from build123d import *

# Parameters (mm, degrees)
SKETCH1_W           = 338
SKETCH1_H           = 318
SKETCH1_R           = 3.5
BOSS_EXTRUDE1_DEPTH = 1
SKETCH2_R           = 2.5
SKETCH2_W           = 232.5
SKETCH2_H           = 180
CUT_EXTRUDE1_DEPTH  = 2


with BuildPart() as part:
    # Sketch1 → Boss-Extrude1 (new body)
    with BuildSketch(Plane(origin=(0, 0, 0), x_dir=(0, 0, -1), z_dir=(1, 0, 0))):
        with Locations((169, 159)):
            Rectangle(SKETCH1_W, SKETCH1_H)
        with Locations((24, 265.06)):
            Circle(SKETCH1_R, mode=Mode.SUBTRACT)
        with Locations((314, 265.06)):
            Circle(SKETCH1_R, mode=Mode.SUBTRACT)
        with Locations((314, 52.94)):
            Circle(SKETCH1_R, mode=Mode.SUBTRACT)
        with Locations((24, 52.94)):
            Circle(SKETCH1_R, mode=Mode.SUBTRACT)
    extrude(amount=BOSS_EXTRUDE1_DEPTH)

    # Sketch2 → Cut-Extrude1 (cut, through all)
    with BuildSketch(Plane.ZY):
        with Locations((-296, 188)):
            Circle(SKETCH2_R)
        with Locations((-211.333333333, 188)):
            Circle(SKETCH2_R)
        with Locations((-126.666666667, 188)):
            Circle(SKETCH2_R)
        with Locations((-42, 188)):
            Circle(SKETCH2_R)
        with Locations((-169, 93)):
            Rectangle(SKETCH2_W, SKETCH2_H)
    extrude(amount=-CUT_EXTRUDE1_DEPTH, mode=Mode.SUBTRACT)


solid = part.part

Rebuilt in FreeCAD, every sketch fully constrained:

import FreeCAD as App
import Part
import Sketcher

doc = App.newDocument("Part")
params = doc.addObject("Spreadsheet::Sheet", "Params")
for row, (alias, value) in enumerate([
    ("sketch1_diameter", "7 mm"),
    ("sketch1_width", "318 mm"),
    ("sketch1_height", "338 mm"),
    ("pad1_length", "1 mm"),
    ("sketch2_diameter", "5 mm"),
    ("sketch2_width", "180 mm"),
    ("sketch2_height", "232.5 mm"),
], start=1):
    params.set(f"A{row}", alias)
    params.set(f"B{row}", "=" + value)
    params.setAlias(f"B{row}", alias)

body = doc.addObject("PartDesign::Body", "Body")

# Sketch on YZ plane
sketch1 = doc.addObject("Sketcher::SketchObject", "Sketch")
body.addObject(sketch1)
sketch1.AttachmentSupport = (doc.YZ_Plane, [""])
sketch1.MapMode = "FlatFace"
sketch1.addGeometry([
    Part.LineSegment(App.Vector(318, 0, 0), App.Vector(0, 0, 0)),  # 0
    Part.LineSegment(App.Vector(0, 0, 0), App.Vector(0, -338, 0)),  # 1
    Part.LineSegment(App.Vector(0, -338, 0), App.Vector(318, -338, 0)),  # 2
    Part.LineSegment(App.Vector(318, -338, 0), App.Vector(318, 0, 0)),  # 3
    Part.Circle(App.Vector(52.9, -24, 0), App.Vector(0, 0, 1), 3.5),  # 4
    Part.Circle(App.Vector(52.9, -314, 0), App.Vector(0, 0, 1), 3.5),  # 5
    Part.Circle(App.Vector(265.1, -24, 0), App.Vector(0, 0, 1), 3.5),  # 6
    Part.Circle(App.Vector(265.1, -314, 0), App.Vector(0, 0, 1), 3.5),  # 7
], False)
sketch1.addConstraint([
    Sketcher.Constraint("Coincident", 0, 2, 1, 1),
    Sketcher.Constraint("Coincident", 1, 2, 2, 1),
    Sketcher.Constraint("Coincident", 2, 2, 3, 1),
    Sketcher.Constraint("Coincident", 3, 2, 0, 1),
    Sketcher.Constraint("Horizontal", 0),
    Sketcher.Constraint("Vertical", 1),
    Sketcher.Constraint("Horizontal", 2),
    Sketcher.Constraint("Vertical", 3),
    Sketcher.Constraint("Coincident", 0, 2, -1, 1),
    Sketcher.Constraint("Equal", 4, 5),
    Sketcher.Constraint("Equal", 5, 6),
    Sketcher.Constraint("Equal", 6, 7),
    Sketcher.Constraint("Horizontal", 4, 3, 6, 3),
    Sketcher.Constraint("Horizontal", 5, 3, 7, 3),
    Sketcher.Constraint("Vertical", 4, 3, 5, 3),
    Sketcher.Constraint("Vertical", 6, 3, 7, 3),
    Sketcher.Constraint("Diameter", 4, 7.0),
    Sketcher.Constraint("DistanceX", 0, 2, 0, 1, 318.0),
    Sketcher.Constraint("DistanceY", 1, 2, 1, 1, 338.0),
    Sketcher.Constraint("DistanceY", 4, 3, -1, 1, 24.0),
    Sketcher.Constraint("DistanceY", 5, 3, -1, 1, 314.0),
    Sketcher.Constraint("DistanceX", -1, 1, 4, 3, 52.94),
    Sketcher.Constraint("DistanceX", -1, 1, 6, 3, 265.06),
])
sketch1.setExpression("Constraints[16]", "Params.sketch1_diameter")
sketch1.setExpression("Constraints[17]", "Params.sketch1_width")
sketch1.setExpression("Constraints[18]", "Params.sketch1_height")
pad1 = doc.addObject("PartDesign::Pad", "Pad")
body.addObject(pad1)
pad1.Profile = sketch1
pad1.setExpression("Length", "Params.pad1_length")

# Sketch on YZ plane
sketch2 = doc.addObject("Sketcher::SketchObject", "Sketch001")
body.addObject(sketch2)
sketch2.AttachmentSupport = (doc.YZ_Plane, [""])
sketch2.MapMode = "FlatFace"
sketch2.addGeometry([
    Part.Circle(App.Vector(188, -296, 0), App.Vector(0, 0, 1), 2.5),  # 0
    Part.Circle(App.Vector(188, -211.3, 0), App.Vector(0, 0, 1), 2.5),  # 1
    Part.Circle(App.Vector(188, -126.7, 0), App.Vector(0, 0, 1), 2.5),  # 2
    Part.Circle(App.Vector(188, -42, 0), App.Vector(0, 0, 1), 2.5),  # 3
    Part.LineSegment(App.Vector(183, -285.2, 0), App.Vector(3, -285.2, 0)),  # 4
    Part.LineSegment(App.Vector(3, -285.2, 0), App.Vector(3, -52.8, 0)),  # 5
    Part.LineSegment(App.Vector(3, -52.8, 0), App.Vector(183, -52.8, 0)),  # 6
    Part.LineSegment(App.Vector(183, -52.8, 0), App.Vector(183, -285.2, 0)),  # 7
], False)
sketch2.addConstraint([
    Sketcher.Constraint("Coincident", 4, 2, 5, 1),
    Sketcher.Constraint("Coincident", 5, 2, 6, 1),
    Sketcher.Constraint("Coincident", 6, 2, 7, 1),
    Sketcher.Constraint("Coincident", 7, 2, 4, 1),
    Sketcher.Constraint("Horizontal", 4),
    Sketcher.Constraint("Vertical", 5),
    Sketcher.Constraint("Horizontal", 6),
    Sketcher.Constraint("Vertical", 7),
    Sketcher.Constraint("Equal", 0, 1),
    Sketcher.Constraint("Equal", 1, 2),
    Sketcher.Constraint("Equal", 2, 3),
    Sketcher.Constraint("Vertical", 0, 3, 1, 3),
    Sketcher.Constraint("Vertical", 1, 3, 2, 3),
    Sketcher.Constraint("Vertical", 2, 3, 3, 3),
    Sketcher.Constraint("Diameter", 0, 5.0),
    Sketcher.Constraint("DistanceX", 4, 2, 4, 1, 180.0),
    Sketcher.Constraint("DistanceY", 5, 1, 5, 2, 232.5),
    Sketcher.Constraint("DistanceX", -1, 1, 0, 3, 188.0),
    Sketcher.Constraint("DistanceY", 0, 3, -1, 1, 296.0),
    Sketcher.Constraint("DistanceY", 3, 3, -1, 1, 42.0),
    Sketcher.Constraint("DistanceX", -1, 1, 4, 2, 3.0),
    Sketcher.Constraint("DistanceY", 4, 2, -1, 1, 285.25),
    Sketcher.Constraint("DistanceY", 1, 3, -1, 1, 211.333333),
    Sketcher.Constraint("DistanceY", 2, 3, -1, 1, 126.666667),
])
sketch2.setExpression("Constraints[14]", "Params.sketch2_diameter")
sketch2.setExpression("Constraints[15]", "Params.sketch2_width")
sketch2.setExpression("Constraints[16]", "Params.sketch2_height")
pocket1 = doc.addObject("PartDesign::Pocket", "Pocket")
body.addObject(pocket1)
pocket1.Profile = sketch2
pocket1.Type = "ThroughAll"
pocket1.Reversed = True

doc.recompute()
